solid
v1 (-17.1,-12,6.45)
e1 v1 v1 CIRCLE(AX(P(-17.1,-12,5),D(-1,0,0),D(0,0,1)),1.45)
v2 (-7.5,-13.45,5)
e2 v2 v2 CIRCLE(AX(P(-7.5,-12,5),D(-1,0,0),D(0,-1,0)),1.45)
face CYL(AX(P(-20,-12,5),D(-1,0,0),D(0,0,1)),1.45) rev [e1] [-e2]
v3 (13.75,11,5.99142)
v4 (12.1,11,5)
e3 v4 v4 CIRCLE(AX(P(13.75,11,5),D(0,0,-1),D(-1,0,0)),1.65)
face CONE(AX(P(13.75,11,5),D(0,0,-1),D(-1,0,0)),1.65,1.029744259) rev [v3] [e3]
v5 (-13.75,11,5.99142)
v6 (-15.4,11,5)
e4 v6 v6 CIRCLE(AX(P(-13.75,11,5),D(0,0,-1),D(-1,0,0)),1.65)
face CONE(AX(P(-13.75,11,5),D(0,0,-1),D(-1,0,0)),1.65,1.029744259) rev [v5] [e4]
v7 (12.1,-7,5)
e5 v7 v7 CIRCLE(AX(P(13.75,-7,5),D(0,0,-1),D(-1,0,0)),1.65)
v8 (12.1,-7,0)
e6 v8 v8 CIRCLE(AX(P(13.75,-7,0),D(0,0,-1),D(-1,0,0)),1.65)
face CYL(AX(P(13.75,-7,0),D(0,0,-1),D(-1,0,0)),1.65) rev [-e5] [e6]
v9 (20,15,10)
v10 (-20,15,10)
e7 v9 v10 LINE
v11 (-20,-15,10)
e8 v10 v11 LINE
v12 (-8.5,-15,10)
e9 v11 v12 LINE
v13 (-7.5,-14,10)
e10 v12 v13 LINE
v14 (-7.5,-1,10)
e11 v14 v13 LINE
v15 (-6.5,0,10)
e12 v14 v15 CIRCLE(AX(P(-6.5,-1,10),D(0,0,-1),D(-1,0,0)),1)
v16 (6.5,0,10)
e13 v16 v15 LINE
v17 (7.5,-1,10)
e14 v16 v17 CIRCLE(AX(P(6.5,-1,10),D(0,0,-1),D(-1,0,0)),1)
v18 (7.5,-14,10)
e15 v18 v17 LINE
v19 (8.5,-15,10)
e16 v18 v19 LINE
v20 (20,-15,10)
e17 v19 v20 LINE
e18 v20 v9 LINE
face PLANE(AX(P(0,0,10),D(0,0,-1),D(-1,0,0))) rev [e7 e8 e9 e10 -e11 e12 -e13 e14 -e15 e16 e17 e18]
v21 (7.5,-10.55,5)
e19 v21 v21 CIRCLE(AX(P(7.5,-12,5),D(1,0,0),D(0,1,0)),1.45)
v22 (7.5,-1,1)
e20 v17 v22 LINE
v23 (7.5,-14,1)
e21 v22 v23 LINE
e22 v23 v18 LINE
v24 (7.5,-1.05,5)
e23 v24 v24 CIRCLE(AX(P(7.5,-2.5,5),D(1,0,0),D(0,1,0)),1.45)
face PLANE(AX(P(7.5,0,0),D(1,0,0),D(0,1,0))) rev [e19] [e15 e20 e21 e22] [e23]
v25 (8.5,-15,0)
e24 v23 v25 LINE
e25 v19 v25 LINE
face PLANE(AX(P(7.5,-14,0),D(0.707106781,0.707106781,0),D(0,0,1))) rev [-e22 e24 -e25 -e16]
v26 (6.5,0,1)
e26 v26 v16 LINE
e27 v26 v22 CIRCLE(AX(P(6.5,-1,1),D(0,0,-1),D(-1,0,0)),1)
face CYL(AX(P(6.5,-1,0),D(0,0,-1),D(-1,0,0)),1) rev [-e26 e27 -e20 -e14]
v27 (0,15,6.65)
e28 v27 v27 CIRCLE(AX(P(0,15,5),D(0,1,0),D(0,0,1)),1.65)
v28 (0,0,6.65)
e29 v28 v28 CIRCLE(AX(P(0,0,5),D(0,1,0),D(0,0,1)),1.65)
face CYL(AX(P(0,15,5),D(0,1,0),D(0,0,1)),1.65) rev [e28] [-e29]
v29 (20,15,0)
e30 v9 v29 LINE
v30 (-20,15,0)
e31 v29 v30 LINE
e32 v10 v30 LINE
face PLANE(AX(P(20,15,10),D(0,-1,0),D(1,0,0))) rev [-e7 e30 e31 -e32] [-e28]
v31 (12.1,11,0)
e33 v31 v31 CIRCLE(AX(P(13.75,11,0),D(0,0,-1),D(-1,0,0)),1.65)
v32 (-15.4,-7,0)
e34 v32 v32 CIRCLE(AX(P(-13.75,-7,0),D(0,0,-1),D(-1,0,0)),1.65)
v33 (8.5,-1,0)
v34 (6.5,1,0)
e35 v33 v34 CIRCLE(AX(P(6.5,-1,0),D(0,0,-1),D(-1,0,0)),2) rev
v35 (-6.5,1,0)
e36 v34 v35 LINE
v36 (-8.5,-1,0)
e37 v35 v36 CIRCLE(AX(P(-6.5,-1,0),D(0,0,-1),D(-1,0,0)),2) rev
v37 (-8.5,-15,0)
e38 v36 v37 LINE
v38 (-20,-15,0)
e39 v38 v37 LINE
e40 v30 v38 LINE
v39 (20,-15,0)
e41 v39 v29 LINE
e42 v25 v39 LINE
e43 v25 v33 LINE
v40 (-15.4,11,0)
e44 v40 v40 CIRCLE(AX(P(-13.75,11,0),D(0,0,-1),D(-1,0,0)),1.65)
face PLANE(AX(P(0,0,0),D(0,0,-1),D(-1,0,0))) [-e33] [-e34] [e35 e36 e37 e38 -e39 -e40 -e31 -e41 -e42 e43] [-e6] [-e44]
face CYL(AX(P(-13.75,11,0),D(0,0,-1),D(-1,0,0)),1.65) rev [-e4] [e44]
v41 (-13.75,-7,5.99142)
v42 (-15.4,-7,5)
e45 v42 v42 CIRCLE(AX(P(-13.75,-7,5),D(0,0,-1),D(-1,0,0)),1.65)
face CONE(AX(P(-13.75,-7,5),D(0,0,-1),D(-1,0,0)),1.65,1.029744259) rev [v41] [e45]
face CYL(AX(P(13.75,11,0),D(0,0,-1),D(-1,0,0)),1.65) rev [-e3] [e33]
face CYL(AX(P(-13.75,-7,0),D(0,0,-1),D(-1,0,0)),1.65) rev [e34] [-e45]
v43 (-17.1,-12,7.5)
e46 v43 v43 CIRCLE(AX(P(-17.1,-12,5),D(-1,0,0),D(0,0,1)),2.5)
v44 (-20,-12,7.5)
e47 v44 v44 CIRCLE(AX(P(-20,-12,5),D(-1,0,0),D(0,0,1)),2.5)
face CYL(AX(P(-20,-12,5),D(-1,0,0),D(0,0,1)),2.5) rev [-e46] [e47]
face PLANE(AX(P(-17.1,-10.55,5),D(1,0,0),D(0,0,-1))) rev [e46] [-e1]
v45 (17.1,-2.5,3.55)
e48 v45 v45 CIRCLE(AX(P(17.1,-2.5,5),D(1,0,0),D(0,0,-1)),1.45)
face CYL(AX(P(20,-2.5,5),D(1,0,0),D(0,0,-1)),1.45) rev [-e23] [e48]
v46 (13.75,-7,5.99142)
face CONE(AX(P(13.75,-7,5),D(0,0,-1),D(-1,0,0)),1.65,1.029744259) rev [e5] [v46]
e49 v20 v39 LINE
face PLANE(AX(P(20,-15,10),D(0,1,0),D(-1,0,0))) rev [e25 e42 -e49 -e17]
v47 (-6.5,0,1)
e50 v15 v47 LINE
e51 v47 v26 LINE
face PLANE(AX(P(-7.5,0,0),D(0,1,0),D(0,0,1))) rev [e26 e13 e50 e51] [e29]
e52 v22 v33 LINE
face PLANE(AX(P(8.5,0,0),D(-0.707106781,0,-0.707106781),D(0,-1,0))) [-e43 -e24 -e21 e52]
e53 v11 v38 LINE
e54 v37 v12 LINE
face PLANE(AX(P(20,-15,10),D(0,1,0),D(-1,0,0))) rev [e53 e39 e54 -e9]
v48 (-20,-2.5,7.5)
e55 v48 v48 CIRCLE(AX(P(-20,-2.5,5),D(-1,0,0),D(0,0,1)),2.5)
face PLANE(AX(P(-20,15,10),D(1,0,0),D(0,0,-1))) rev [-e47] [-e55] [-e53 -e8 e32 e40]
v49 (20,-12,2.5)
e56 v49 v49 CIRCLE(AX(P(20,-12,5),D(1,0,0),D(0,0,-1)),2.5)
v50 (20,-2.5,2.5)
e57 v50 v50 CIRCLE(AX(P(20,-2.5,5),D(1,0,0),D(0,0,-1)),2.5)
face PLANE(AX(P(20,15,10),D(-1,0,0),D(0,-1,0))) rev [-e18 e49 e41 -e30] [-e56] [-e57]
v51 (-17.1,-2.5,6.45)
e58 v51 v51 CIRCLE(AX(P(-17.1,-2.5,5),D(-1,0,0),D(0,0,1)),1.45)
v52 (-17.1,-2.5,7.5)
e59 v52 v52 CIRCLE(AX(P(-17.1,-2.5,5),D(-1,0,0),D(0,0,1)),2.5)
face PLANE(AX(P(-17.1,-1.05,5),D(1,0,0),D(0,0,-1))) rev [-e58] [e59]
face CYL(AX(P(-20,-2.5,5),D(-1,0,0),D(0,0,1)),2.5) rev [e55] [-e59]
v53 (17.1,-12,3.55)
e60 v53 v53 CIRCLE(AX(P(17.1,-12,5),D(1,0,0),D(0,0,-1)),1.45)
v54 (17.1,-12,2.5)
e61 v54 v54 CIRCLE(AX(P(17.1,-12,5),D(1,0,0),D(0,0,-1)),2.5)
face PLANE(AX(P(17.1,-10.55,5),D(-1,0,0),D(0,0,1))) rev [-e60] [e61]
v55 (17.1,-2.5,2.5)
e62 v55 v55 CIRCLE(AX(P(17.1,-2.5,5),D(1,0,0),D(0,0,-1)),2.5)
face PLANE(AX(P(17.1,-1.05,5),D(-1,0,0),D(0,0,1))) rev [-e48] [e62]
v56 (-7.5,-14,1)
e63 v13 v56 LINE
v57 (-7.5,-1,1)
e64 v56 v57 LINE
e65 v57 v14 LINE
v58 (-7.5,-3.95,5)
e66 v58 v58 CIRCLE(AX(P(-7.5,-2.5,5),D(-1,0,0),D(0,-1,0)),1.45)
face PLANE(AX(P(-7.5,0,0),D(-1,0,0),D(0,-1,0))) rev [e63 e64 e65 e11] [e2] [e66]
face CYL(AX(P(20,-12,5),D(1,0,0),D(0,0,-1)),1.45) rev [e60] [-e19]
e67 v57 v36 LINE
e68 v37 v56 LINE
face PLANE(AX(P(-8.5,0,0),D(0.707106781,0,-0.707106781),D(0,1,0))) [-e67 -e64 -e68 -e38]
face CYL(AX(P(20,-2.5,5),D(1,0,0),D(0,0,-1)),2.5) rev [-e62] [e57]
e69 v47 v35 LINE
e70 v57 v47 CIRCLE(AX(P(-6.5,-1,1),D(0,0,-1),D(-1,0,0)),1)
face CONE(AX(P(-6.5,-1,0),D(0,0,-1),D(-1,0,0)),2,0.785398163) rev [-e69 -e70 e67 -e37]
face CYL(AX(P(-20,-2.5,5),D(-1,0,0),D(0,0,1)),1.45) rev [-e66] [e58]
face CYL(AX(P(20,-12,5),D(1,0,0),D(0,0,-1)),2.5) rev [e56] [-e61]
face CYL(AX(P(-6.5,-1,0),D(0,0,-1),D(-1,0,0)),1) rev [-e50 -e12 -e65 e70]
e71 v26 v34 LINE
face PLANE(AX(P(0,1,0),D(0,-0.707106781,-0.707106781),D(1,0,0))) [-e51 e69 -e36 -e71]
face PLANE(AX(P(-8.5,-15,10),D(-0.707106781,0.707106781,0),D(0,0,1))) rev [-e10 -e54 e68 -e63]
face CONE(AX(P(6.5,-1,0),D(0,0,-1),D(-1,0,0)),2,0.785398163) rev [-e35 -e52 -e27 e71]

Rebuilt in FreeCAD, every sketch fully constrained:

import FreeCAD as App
import Part
import Sketcher
from FreeCAD import Vector


def edges_at(feature, points):
    """Names of the edges that pass closest to the given points."""
    edges = feature.Shape.Edges
    near = lambda p: min(range(len(edges)), key=lambda i: edges[i].distToShape(Part.Vertex(*p))[0])
    return sorted({f"Edge{near(p) + 1}" for p in points})


def add_polygon(sketch, points):
    """Adds a closed chain of lines whose ends are joined by coincident constraints."""
    first, n = sketch.GeometryCount, len(points)
    for a, b in zip(points, points[1:] + points[:1]):
        sketch.addGeometry(Part.LineSegment(App.Vector(*a, 0), App.Vector(*b, 0)), False)
    for i in range(n):
        sketch.addConstraint(Sketcher.Constraint("Coincident", first + i, 2, first + (i + 1) % n, 1))

doc = App.newDocument("Part")
body = doc.addObject("PartDesign::Body", "Body")

sketch1 = doc.addObject("Sketcher::SketchObject", "Sketch")
body.addObject(sketch1)
sketch1.AttachmentSupport = (doc.XY_Plane, [""])
sketch1.MapMode = "FlatFace"
add_polygon(sketch1, [(-20, 15), (-20, -15), (20, -15), (20, 15)])
sketch1.addConstraint([
    Sketcher.Constraint("Vertical", 0),
    Sketcher.Constraint("Horizontal", 1),
    Sketcher.Constraint("Vertical", 2),
    Sketcher.Constraint("Horizontal", 3),
    Sketcher.Constraint("Symmetric", 0, 2, 2, 2, -1, 1),
    Sketcher.Constraint("DistanceX", 1, 1, 1, 2, 40.0),
    Sketcher.Constraint("DistanceY", 0, 2, 0, 1, 30.0),
])
pad1 = doc.addObject("PartDesign::Pad", "Pad")
body.addObject(pad1)
pad1.Profile = sketch1
pad1.Length = 10

sketch2 = doc.addObject("Sketcher::SketchObject", "Sketch001")
body.addObject(sketch2)
sketch2.AttachmentSupport = (doc.XY_Plane, [""])
sketch2.MapMode = "FlatFace"
sketch2.AttachmentOffset = App.Placement(Vector(0, 0, 10), App.Rotation())
add_polygon(sketch2, [(-8, 0), (-8, -15), (8, -15), (8, 0)])
sketch2.addConstraint([
    Sketcher.Constraint("Vertical", 0),
    Sketcher.Constraint("Horizontal", 1),
    Sketcher.Constraint("Vertical", 2),
    Sketcher.Constraint("Horizontal", 3),
    Sketcher.Constraint("Symmetric", 2, 2, 3, 2, -1, 1),
    Sketcher.Constraint("Equal", 3, 0),
    Sketcher.Constraint("DistanceX", 1, 1, 1, 2, 15.0),
])
pocket1 = doc.addObject("PartDesign::Pocket", "Pocket")
body.addObject(pocket1)
pocket1.Profile = sketch2
pocket1.Type = "ThroughAll"

sketch3 = doc.addObject("Sketcher::SketchObject", "Sketch002")
body.addObject(sketch3)
sketch3.AttachmentSupport = (doc.YZ_Plane, [""])
sketch3.MapMode = "FlatFace"
sketch3.AttachmentOffset = App.Placement(Vector(0, 0, -20), App.Rotation())
sketch3.addGeometry([
    Part.Circle(Vector(-2.5, 5, 0), Vector(0, 0, 1), 1.4),
    Part.Circle(Vector(-12, 5, 0), Vector(0, 0, 1), 1.4),
], False)
sketch3.addConstraint([
    Sketcher.Constraint("Equal", 0, 1),
    Sketcher.Constraint("Horizontal", 0, 3, 1, 3),
    Sketcher.Constraint("Diameter", 0, 2.9),
    Sketcher.Constraint("DistanceY", -1, 1, 0, 3, 5.0),
    Sketcher.Constraint("DistanceX", 1, 3, -1, 1, 12.0),
    Sketcher.Constraint("DistanceX", 0, 3, -1, 1, 2.5),
])
doc.recompute()
hole = doc.addObject("PartDesign::Hole", "Hole")
body.addObject(hole)
hole.Profile = sketch3
hole.ThreadType = "None"
hole.Diameter = 2.9
hole.DepthType = "Dimension"
hole.Depth = 12.5
hole.DrillPoint = "Flat"
hole.HoleCutType = "Counterbore"
hole.HoleCutDiameter = 5
hole.HoleCutDepth = 2.9
hole.Reversed = True
doc.recompute()

mirrored = doc.addObject("PartDesign::Mirrored", "Mirrored")
body.addObject(mirrored)
mirrored.Originals = [hole]
mirrored.MirrorPlane = (doc.YZ_Plane, [""])
body.Tip = mirrored

sketch4 = doc.addObject("Sketcher::SketchObject", "Sketch003")
body.addObject(sketch4)
sketch4.AttachmentSupport = (doc.XY_Plane, [""])
sketch4.MapMode = "FlatFace"
sketch4.addGeometry([
    Part.Circle(Vector(13.8, -7, 0), Vector(0, 0, 1), 1.6),
    Part.Circle(Vector(13.8, 11, 0), Vector(0, 0, 1), 1.6),
    Part.Circle(Vector(-13.8, 11, 0), Vector(0, 0, 1), 1.6),
    Part.Circle(Vector(-13.8, -7, 0), Vector(0, 0, 1), 1.6),
], False)
sketch4.addConstraint([
    Sketcher.Constraint("Equal", 0, 1),
    Sketcher.Constraint("Equal", 1, 2),
    Sketcher.Constraint("Equal", 2, 3),
    Sketcher.Constraint("Symmetric", 1, 3, 2, 3, -2),
    Sketcher.Constraint("Symmetric", 0, 3, 3, 3, -2),
    Sketcher.Constraint("Vertical", 0, 3, 1, 3),
    Sketcher.Constraint("Diameter", 0, 3.3),
    Sketcher.Constraint("DistanceY", 0, 3, -1, 1, 7.0),
    Sketcher.Constraint("DistanceY", -1, 1, 1, 3, 11.0),
    Sketcher.Constraint("DistanceX", 2, 3, 1, 3, 27.5),
])
doc.recompute()
hole2 = doc.addObject("PartDesign::Hole", "Hole001")
body.addObject(hole2)
hole2.Profile = sketch4
hole2.ThreadType = "None"
hole2.Diameter = 3.3
hole2.DepthType = "Dimension"
hole2.Depth = 5
hole2.DrillPoint = "Angled"
hole2.DrillPointAngle = 118
hole2.Reversed = True
doc.recompute()

fillet = doc.addObject("PartDesign::Fillet", "Fillet")
body.addObject(fillet)
fillet.Base = (hole2, edges_at(hole2, [(7.5, 0, 5), (-7.5, 0, 5)]))
fillet.Radius = 1
doc.recompute()

chamfer = doc.addObject("PartDesign::Chamfer", "Chamfer")
body.addObject(chamfer)
chamfer.Base = (fillet, edges_at(fillet, [(7.5, -15, 5), (-7.5, -15, 5)]))
chamfer.Size = 1
doc.recompute()

chamfer2 = doc.addObject("PartDesign::Chamfer", "Chamfer001")
body.addObject(chamfer2)
chamfer2.Base = (chamfer, edges_at(chamfer, [
    (7.5, -7.5, 0),
    (-7.5, -7.5, 0),
    (7.207, -0.293, 0),
    (-7.207, -0.293, 0),
    (0, 0, 0),
]))
chamfer2.Size = 1

sketch5 = doc.addObject("Sketcher::SketchObject", "Sketch004")
body.addObject(sketch5)
sketch5.AttachmentSupport = (doc.XZ_Plane, [""])
sketch5.MapMode = "FlatFace"
sketch5.AttachmentOffset = App.Placement(Vector(0, 0, -15), App.Rotation())
sketch5.addGeometry(Part.Circle(Vector(0, 5, 0), Vector(0, 0, 1), 1.6), False)
sketch5.addConstraint([
    Sketcher.Constraint("PointOnObject", 0, 3, -2),
    Sketcher.Constraint("Diameter", 0, 3.3),
    Sketcher.Constraint("DistanceY", -1, 1, 0, 3, 5.0),
])
doc.recompute()
hole3 = doc.addObject("PartDesign::Hole", "Hole002")
body.addObject(hole3)
hole3.Profile = sketch5
hole3.ThreadType = "None"
hole3.Diameter = 3.3
hole3.DepthType = "ThroughAll"
hole3.Reversed = True

doc.recompute()
